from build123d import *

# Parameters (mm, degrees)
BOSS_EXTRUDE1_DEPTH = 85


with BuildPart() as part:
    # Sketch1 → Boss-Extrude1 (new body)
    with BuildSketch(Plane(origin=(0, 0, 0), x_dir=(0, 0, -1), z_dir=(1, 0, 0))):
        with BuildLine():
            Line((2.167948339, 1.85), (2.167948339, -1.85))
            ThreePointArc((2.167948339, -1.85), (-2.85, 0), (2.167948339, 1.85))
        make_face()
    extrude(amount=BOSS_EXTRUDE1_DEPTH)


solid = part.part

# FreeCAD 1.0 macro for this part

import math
import FreeCAD as App
import Part
import Sketcher

V = App.Vector

doc = App.newDocument("Part")
body = doc.addObject("PartDesign::Body", "Body")

# Sketch on YZ plane
sketch1 = body.newObject("Sketcher::SketchObject", "Sketch")
sketch1.AttachmentSupport = (doc.getObject("YZ_Plane"), [""])
sketch1.MapMode = "FlatFace"
sketch1.addGeometry([
    Part.LineSegment(V(-1.9, -2.2, 0), V(1.9, -2.2, 0)),
    Part.ArcOfCircle(Part.Circle(V(0, 0, 0), V(0, 0, 1), 2.9), math.radians(-50), math.radians(230)),
], False)
sketch1.addConstraint([
    Sketcher.Constraint("Coincident", 0, 1, 1, 2),
    Sketcher.Constraint("Coincident", 1, 1, 0, 2),
    Sketcher.Constraint("Horizontal", 0),
    Sketcher.Constraint("Coincident", 1, 3, -1, 1),
    Sketcher.Constraint("Radius", 1, 2.85),
    Sketcher.Constraint("DistanceX", 0, 1, 0, 2, 3.7),
])
pad1 = body.newObject("PartDesign::Pad", "Pad")
pad1.Profile = sketch1
pad1.Length = 85

doc.recompute()
